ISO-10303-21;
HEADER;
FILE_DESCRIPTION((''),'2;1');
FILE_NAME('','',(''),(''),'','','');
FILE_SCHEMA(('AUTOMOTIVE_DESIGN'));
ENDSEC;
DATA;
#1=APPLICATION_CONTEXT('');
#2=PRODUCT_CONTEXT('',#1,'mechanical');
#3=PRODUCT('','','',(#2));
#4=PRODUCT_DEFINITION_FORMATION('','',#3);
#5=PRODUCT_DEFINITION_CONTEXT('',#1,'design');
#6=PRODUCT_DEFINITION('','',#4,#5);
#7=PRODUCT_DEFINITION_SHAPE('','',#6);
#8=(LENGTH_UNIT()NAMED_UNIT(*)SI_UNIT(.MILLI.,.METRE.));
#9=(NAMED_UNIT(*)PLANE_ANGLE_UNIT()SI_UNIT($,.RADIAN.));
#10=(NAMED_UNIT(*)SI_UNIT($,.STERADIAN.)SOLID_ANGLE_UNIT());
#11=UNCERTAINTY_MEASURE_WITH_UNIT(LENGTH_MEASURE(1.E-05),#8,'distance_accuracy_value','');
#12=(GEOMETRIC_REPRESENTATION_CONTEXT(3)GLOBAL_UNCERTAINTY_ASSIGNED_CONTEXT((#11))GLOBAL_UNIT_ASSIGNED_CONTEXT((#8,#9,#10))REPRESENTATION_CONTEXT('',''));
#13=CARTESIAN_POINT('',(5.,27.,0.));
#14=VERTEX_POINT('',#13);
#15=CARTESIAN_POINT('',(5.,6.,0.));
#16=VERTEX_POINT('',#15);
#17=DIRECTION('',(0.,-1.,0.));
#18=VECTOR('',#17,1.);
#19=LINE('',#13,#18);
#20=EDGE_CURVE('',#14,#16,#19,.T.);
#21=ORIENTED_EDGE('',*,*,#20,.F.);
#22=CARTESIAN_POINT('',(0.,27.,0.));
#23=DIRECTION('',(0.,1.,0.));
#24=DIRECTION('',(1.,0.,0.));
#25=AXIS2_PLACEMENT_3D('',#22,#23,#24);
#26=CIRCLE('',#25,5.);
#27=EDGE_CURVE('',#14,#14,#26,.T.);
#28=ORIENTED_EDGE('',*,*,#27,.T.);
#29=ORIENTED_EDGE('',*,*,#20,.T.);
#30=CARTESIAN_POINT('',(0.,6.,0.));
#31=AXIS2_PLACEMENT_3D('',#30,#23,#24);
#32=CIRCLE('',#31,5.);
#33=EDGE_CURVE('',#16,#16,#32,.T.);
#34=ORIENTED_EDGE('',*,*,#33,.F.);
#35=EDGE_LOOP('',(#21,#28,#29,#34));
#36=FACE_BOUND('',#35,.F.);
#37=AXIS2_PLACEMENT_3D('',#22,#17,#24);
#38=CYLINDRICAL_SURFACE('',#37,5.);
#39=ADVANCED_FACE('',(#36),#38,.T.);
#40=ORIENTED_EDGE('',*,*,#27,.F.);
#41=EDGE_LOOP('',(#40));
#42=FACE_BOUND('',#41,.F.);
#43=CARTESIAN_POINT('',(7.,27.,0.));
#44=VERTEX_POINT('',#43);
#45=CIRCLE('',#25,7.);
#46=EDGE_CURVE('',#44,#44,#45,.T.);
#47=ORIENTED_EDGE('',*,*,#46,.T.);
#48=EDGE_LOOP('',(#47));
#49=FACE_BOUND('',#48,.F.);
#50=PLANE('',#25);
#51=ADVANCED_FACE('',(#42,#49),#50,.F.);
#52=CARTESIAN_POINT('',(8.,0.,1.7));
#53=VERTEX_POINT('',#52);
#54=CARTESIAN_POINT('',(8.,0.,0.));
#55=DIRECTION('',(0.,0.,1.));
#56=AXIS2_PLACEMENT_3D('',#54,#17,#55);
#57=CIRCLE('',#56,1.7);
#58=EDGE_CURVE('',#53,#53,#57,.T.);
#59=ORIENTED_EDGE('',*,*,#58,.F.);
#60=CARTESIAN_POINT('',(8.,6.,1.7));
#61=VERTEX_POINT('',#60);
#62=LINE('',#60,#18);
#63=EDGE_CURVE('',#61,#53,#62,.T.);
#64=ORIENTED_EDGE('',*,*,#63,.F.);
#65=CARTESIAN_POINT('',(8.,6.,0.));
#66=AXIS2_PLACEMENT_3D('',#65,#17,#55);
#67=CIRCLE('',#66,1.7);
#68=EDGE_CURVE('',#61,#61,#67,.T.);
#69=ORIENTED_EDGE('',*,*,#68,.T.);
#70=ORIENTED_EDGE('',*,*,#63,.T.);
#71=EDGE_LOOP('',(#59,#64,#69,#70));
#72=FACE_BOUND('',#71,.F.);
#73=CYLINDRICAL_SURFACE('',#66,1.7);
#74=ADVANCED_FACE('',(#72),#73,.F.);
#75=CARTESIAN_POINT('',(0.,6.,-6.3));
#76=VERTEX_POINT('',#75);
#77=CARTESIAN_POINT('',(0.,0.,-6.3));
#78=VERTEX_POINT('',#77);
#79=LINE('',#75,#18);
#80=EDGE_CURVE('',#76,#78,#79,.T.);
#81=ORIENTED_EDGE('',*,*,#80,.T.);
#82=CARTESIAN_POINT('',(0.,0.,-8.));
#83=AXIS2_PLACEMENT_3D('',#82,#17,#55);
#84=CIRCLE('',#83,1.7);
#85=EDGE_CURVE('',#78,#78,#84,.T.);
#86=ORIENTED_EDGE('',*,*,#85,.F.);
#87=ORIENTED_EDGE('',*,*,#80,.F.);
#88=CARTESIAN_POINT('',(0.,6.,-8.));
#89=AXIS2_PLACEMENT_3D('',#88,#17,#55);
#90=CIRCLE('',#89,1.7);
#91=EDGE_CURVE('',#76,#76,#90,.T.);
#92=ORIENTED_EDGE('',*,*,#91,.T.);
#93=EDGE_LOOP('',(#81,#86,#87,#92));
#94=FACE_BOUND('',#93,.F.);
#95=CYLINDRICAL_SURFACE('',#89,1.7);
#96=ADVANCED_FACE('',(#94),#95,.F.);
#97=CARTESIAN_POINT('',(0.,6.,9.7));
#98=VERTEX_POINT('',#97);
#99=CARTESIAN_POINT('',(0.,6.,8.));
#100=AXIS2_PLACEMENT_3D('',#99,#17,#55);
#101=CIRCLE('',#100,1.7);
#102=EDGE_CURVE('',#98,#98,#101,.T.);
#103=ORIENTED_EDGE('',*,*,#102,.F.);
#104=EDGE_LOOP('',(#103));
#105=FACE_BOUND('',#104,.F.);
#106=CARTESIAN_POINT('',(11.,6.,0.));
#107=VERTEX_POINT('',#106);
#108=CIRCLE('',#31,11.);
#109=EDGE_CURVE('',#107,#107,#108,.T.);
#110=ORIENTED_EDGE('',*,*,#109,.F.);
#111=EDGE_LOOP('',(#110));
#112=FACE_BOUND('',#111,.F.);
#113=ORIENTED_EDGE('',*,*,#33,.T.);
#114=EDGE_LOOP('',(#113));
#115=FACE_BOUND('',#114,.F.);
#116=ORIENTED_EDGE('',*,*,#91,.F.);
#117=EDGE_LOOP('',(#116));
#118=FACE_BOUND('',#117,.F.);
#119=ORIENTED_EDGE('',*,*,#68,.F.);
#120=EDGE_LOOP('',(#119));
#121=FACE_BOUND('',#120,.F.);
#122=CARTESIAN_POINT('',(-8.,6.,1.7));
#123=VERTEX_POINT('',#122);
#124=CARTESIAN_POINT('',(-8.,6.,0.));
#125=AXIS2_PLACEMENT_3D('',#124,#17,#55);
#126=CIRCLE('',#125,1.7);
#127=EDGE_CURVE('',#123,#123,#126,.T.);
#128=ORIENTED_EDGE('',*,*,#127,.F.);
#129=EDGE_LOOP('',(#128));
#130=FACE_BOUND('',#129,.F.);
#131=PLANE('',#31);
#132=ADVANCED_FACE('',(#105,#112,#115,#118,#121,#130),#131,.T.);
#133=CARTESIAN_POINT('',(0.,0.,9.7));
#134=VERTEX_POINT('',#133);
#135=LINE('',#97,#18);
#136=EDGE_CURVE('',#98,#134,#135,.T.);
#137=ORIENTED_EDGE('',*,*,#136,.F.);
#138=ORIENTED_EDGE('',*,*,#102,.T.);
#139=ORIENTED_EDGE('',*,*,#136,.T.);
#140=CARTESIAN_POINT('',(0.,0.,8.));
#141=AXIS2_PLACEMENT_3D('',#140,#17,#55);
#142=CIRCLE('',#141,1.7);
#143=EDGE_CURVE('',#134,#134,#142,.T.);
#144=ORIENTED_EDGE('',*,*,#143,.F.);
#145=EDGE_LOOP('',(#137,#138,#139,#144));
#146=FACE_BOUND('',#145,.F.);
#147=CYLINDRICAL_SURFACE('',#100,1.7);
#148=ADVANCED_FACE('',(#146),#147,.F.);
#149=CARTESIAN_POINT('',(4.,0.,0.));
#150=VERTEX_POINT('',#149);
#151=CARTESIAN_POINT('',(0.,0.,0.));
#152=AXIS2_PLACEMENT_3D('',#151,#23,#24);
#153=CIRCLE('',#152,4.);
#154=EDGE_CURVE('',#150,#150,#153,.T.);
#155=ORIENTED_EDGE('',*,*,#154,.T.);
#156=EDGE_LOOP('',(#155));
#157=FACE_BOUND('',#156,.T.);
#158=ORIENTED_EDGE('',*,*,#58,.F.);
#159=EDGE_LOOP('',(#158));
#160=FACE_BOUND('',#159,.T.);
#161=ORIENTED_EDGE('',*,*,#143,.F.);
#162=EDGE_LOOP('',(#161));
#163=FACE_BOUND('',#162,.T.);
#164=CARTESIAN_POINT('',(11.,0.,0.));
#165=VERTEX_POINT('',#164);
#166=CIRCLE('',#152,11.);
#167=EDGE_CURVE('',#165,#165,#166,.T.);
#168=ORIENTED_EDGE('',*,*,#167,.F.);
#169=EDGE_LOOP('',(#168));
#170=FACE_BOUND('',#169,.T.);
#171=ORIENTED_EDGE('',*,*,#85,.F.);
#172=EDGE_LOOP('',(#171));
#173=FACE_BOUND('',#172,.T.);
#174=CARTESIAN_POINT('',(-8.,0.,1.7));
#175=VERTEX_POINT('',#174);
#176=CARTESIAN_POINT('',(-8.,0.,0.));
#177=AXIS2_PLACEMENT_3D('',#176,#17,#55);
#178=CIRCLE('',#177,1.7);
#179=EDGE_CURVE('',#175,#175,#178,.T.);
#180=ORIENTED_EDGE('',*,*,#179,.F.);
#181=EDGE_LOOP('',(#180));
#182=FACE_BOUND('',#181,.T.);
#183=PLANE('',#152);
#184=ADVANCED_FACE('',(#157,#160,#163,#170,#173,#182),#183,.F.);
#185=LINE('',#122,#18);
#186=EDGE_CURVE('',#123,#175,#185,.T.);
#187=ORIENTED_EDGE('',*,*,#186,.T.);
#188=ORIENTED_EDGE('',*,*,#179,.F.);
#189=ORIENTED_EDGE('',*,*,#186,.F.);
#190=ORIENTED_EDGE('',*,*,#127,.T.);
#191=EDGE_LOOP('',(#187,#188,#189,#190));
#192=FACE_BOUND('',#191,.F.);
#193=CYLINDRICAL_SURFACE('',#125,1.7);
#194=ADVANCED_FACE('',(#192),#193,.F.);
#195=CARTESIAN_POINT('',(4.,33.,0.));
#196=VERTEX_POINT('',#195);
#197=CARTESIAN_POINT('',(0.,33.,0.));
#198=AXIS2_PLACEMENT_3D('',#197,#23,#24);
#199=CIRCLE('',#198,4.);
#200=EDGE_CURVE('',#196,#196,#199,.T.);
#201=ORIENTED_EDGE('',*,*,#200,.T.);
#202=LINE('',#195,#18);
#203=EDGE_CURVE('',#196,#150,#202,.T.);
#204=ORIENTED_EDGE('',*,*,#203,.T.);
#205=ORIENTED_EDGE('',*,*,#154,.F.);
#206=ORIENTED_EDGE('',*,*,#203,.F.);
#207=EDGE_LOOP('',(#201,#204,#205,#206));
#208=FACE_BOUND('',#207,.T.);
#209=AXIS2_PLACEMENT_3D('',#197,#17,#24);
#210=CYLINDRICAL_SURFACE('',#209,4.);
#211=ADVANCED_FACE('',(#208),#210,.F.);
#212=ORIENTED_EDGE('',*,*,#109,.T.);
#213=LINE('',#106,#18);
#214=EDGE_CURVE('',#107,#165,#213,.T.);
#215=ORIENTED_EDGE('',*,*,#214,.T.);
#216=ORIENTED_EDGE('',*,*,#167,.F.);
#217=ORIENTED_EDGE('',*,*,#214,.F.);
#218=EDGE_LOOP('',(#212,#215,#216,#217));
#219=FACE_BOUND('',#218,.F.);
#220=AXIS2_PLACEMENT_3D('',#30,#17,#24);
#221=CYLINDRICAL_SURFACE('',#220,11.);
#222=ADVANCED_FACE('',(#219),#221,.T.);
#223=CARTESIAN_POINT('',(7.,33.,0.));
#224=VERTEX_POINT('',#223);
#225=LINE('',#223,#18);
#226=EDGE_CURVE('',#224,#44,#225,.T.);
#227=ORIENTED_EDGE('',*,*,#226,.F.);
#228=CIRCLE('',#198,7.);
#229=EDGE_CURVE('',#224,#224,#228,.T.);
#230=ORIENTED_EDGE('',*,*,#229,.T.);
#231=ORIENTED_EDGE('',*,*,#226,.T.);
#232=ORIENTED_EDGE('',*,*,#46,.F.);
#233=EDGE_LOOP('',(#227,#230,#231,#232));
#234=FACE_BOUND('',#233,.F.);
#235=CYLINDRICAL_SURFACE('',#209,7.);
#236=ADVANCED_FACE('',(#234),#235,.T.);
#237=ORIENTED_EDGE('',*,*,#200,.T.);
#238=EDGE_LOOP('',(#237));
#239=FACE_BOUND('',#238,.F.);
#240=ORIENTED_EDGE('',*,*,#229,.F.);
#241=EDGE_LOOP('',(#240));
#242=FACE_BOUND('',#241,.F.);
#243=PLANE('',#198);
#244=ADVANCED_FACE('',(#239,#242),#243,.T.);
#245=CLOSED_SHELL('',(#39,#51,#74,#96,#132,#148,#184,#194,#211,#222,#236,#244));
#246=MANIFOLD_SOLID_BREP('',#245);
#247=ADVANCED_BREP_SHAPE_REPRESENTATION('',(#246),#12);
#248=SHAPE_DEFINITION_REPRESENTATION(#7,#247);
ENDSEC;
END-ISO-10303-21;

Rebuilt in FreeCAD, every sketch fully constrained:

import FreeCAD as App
import Part
import Sketcher
from FreeCAD import Vector
Q = App.Units.Quantity


def add_polygon(sketch, points):
    """Adds a closed chain of lines whose ends are joined by coincident constraints."""
    first, n = sketch.GeometryCount, len(points)
    for a, b in zip(points, points[1:] + points[:1]):
        sketch.addGeometry(Part.LineSegment(App.Vector(*a, 0), App.Vector(*b, 0)), False)
    for i in range(n):
        sketch.addConstraint(Sketcher.Constraint("Coincident", first + i, 2, first + (i + 1) % n, 1))

doc = App.newDocument("Part")
params = doc.addObject("Spreadsheet::Sheet", "Params")
for row, (alias, value) in enumerate([
    ("sketch1_width", "6 mm"),
    ("sketch1_height", "33 mm"),
    ("sketch1_width2", "3 mm"),
    ("sketch1_width3", "7 mm"),
    ("revolution_angle", "360 deg"),
    ("sketch2_diameter", "3.4 mm"),
    ("hole_diameter", "3.4 mm"),
    ("hole_depth", "8 mm"),
], start=1):
    params.set(f"A{row}", alias)
    params.set(f"B{row}", "=" + value)
    params.setAlias(f"B{row}", alias)

body = doc.addObject("PartDesign::Body", "Body")

sketch1 = body.newObject("Sketcher::SketchObject", "Sketch")
sketch1.AttachmentSupport = (doc.getObject("XY_Plane"), [""])
sketch1.MapMode = "FlatFace"
add_polygon(sketch1, [(7, 27), (7, 33), (4, 33), (4, 0), (11, 0), (11, 6), (5, 6), (5, 27)])
sketch1.addConstraint(Sketcher.Constraint("Vertical", 0))
sketch1.addConstraint(Sketcher.Constraint("Horizontal", 1))
sketch1.addConstraint(Sketcher.Constraint("Vertical", 2))
sketch1.addConstraint(Sketcher.Constraint("Horizontal", 3))
sketch1.addConstraint(Sketcher.Constraint("Vertical", 4))
sketch1.addConstraint(Sketcher.Constraint("Horizontal", 5))
sketch1.addConstraint(Sketcher.Constraint("Vertical", 6))
sketch1.addConstraint(Sketcher.Constraint("Horizontal", 7))
sketch1.addConstraint(Sketcher.Constraint("PointOnObject", 2, 2, -1))
sketch1.addConstraint(Sketcher.Constraint("Equal", 5, 0))
sketch1.addConstraint(Sketcher.Constraint("Equal", 0, 4))
sketch1.addConstraint(Sketcher.Constraint("DistanceX", 5, 2, 5, 1, Q("6 mm")))
sketch1.addConstraint(Sketcher.Constraint("DistanceY", 2, 2, 2, 1, Q("33 mm")))
sketch1.addConstraint(Sketcher.Constraint("DistanceX", 1, 2, 1, 1, Q("3 mm")))
sketch1.addConstraint(Sketcher.Constraint("DistanceX", 3, 1, 3, 2, Q("7 mm")))
sketch1.addConstraint(Sketcher.Constraint("DistanceX", -1, 1, 0, 2, Q("7 mm")))
sketch1.setExpression("Constraints[19]", "Params.sketch1_width")
sketch1.setExpression("Constraints[20]", "Params.sketch1_height")
sketch1.setExpression("Constraints[21]", "Params.sketch1_width2")
sketch1.setExpression("Constraints[22]", "Params.sketch1_width3")
revolution = body.newObject("PartDesign::Revolution", "Revolution")
revolution.Profile = sketch1
revolution.ReferenceAxis = (sketch1, ["V_Axis"])
revolution.setExpression("Angle", "Params.revolution_angle")

sketch2 = body.newObject("Sketcher::SketchObject", "Sketch001")
sketch2.AttachmentSupport = (doc.getObject("XZ_Plane"), [""])
sketch2.MapMode = "FlatFace"
sketch2.AttachmentOffset = App.Placement(Vector(0, 0, -6), App.Rotation())
sketch2.addGeometry(Part.Circle(Vector(-8, 0, 0), Vector(0, 0, 1), 1.7), False)
sketch2.addGeometry(Part.Circle(Vector(0, 8, 0), Vector(0, 0, 1), 1.7), False)
sketch2.addGeometry(Part.Circle(Vector(0, -8, 0), Vector(0, 0, 1), 1.7), False)
sketch2.addGeometry(Part.Circle(Vector(8, 0, 0), Vector(0, 0, 1), 1.7), False)
sketch2.addConstraint(Sketcher.Constraint("Equal", 0, 1))
sketch2.addConstraint(Sketcher.Constraint("Equal", 1, 2))
sketch2.addConstraint(Sketcher.Constraint("Equal", 2, 3))
sketch2.addConstraint(Sketcher.Constraint("Symmetric", 1, 3, 2, 3, -1, 1))
sketch2.addConstraint(Sketcher.Constraint("Symmetric", 0, 3, 3, 3, -1, 1))
sketch2.addConstraint(Sketcher.Constraint("PointOnObject", 0, 3, -1))
sketch2.addConstraint(Sketcher.Constraint("PointOnObject", 1, 3, -2))
sketch2.addConstraint(Sketcher.Constraint("Diameter", 0, Q("3.4 mm")))
sketch2.addConstraint(Sketcher.Constraint("DistanceX", 0, 3, -1, 1, Q("8 mm")))
sketch2.addConstraint(Sketcher.Constraint("DistanceY", -1, 1, 1, 3, Q("8 mm")))
sketch2.setExpression("Constraints[7]", "Params.sketch2_diameter")
doc.recompute()
hole = body.newObject("PartDesign::Hole", "Hole")
hole.Profile = sketch2
hole.ThreadType = "None"
hole.setExpression("Diameter", "Params.hole_diameter")
hole.DepthType = "Dimension"
hole.setExpression("Depth", "Params.hole_depth")
hole.DrillPoint = "Angled"
hole.DrillPointAngle = 118
hole.Reversed = True

doc.recompute()
